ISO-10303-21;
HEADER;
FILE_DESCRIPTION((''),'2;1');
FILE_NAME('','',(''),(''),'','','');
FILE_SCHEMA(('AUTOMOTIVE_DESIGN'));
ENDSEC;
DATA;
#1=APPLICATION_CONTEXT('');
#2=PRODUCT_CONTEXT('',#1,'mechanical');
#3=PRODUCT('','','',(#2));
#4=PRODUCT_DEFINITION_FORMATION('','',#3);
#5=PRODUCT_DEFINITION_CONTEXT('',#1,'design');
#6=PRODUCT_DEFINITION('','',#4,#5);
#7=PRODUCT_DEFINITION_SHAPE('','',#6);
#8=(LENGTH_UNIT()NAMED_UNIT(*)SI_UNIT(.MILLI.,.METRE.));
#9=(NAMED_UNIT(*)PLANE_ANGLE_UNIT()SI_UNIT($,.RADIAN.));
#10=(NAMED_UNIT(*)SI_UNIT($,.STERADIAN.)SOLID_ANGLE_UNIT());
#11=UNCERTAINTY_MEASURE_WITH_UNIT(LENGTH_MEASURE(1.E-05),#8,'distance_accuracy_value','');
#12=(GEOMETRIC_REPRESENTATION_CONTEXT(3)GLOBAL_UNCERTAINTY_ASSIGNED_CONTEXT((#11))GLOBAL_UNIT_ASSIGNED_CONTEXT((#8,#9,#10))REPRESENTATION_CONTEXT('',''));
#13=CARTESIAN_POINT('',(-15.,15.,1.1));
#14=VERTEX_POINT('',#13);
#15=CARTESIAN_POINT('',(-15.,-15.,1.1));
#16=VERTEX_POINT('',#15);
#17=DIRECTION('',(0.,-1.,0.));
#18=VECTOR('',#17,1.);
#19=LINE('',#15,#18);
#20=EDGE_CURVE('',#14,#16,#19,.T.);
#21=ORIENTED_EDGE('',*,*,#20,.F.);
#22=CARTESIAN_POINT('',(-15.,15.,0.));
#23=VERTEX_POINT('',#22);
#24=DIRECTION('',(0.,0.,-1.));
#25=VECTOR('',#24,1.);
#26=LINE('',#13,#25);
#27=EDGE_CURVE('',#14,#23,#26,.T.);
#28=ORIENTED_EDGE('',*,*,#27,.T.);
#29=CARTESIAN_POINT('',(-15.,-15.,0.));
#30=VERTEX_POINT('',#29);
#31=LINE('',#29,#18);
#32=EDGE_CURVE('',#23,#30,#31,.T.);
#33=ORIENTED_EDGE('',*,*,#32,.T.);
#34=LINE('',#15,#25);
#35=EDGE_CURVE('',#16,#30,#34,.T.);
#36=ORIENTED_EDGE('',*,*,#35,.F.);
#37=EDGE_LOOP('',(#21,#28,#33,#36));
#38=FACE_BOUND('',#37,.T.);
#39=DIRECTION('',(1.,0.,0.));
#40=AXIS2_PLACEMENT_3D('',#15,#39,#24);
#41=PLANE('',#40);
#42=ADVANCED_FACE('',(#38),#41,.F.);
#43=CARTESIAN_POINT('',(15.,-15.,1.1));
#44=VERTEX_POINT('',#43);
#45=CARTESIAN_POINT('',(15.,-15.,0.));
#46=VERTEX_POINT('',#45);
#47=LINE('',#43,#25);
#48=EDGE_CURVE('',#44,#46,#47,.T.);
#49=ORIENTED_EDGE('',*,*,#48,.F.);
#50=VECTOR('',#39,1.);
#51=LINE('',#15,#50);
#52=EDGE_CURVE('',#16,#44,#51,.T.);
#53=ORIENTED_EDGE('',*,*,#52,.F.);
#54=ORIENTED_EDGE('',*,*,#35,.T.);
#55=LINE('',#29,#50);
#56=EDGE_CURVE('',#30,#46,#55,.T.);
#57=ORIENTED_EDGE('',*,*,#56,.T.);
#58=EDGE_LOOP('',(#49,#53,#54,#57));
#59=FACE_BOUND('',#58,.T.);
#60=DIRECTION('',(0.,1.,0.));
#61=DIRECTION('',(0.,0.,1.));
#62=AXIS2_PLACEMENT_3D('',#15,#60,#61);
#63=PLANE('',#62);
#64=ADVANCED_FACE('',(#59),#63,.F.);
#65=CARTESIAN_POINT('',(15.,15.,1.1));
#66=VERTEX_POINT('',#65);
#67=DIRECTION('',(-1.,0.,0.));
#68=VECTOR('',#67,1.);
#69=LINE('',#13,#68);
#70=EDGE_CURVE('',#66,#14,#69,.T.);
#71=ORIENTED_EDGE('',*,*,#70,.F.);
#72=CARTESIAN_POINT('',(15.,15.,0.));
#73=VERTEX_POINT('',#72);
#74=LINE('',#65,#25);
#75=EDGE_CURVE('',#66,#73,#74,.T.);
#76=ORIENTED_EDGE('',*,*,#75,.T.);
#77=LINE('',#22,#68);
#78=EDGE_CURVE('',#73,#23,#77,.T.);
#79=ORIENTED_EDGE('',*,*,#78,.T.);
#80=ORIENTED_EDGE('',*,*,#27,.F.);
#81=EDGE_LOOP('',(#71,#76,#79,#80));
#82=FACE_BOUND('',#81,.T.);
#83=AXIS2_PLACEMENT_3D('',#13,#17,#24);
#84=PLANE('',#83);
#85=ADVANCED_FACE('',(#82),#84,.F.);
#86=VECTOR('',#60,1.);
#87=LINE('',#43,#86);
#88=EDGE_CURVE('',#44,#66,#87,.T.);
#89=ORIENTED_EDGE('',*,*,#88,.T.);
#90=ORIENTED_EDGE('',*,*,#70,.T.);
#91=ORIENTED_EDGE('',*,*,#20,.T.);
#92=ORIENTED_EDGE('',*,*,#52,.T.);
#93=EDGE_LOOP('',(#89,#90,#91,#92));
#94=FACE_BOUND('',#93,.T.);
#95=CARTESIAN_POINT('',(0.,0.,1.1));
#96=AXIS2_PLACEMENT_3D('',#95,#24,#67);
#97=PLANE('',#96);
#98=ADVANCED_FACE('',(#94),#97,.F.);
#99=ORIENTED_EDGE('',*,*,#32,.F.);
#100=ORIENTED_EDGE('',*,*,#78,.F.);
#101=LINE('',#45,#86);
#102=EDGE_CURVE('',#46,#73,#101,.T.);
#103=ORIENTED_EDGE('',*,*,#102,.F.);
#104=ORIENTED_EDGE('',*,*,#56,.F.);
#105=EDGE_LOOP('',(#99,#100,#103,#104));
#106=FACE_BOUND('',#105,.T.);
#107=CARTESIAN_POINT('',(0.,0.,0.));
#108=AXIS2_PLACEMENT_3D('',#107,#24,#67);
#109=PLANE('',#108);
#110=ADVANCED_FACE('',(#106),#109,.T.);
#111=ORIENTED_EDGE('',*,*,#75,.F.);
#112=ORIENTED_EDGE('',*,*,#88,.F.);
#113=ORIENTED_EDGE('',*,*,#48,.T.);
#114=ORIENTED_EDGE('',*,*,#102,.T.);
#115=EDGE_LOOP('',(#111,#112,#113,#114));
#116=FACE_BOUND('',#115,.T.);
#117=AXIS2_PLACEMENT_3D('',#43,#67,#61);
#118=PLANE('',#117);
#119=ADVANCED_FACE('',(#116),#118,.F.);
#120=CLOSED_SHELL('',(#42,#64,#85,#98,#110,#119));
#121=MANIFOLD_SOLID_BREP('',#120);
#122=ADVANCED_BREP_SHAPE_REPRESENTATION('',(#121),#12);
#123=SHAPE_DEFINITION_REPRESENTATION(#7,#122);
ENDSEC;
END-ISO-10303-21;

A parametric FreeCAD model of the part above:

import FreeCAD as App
import Part
import Sketcher
from FreeCAD import Vector
Q = App.Units.Quantity

doc = App.newDocument("Part")
params = doc.addObject("Spreadsheet::Sheet", "Params")
for row, (alias, value) in enumerate([
    ("sketch1_width", "30 mm"),
    ("pad1_length", "1.1 mm"),
], start=1):
    params.set(f"A{row}", alias)
    params.set(f"B{row}", "=" + value)
    params.setAlias(f"B{row}", alias)

body = doc.addObject("PartDesign::Body", "Body")

# Sketch on XY plane
sketch1 = body.newObject("Sketcher::SketchObject", "Sketch")
sketch1.AttachmentSupport = (doc.getObject("XY_Plane"), [""])
sketch1.MapMode = "FlatFace"
sketch1.addGeometry([
    Part.LineSegment(Vector(-15, 15, 0), Vector(-15, -15, 0)),
    Part.LineSegment(Vector(-15, -15, 0), Vector(15, -15, 0)),
    Part.LineSegment(Vector(15, -15, 0), Vector(15, 15, 0)),
    Part.LineSegment(Vector(15, 15, 0), Vector(-15, 15, 0)),
], False)
sketch1.addConstraint([
    Sketcher.Constraint("Coincident", 0, 2, 1, 1),
    Sketcher.Constraint("Coincident", 1, 2, 2, 1),
    Sketcher.Constraint("Coincident", 2, 2, 3, 1),
    Sketcher.Constraint("Coincident", 3, 2, 0, 1),
    Sketcher.Constraint("Vertical", 0),
    Sketcher.Constraint("Horizontal", 1),
    Sketcher.Constraint("Vertical", 2),
    Sketcher.Constraint("Horizontal", 3),
    Sketcher.Constraint("Symmetric", 0, 2, 2, 2, -1, 1),
    Sketcher.Constraint("Equal", 3, 0),
    Sketcher.Constraint("DistanceX", 1, 1, 1, 2, Q("30 mm")),
])
sketch1.setExpression("Constraints[10]", "Params.sketch1_width")
pad1 = body.newObject("PartDesign::Pad", "Pad")
pad1.Profile = sketch1
pad1.setExpression("Length", "Params.pad1_length")

doc.recompute()
